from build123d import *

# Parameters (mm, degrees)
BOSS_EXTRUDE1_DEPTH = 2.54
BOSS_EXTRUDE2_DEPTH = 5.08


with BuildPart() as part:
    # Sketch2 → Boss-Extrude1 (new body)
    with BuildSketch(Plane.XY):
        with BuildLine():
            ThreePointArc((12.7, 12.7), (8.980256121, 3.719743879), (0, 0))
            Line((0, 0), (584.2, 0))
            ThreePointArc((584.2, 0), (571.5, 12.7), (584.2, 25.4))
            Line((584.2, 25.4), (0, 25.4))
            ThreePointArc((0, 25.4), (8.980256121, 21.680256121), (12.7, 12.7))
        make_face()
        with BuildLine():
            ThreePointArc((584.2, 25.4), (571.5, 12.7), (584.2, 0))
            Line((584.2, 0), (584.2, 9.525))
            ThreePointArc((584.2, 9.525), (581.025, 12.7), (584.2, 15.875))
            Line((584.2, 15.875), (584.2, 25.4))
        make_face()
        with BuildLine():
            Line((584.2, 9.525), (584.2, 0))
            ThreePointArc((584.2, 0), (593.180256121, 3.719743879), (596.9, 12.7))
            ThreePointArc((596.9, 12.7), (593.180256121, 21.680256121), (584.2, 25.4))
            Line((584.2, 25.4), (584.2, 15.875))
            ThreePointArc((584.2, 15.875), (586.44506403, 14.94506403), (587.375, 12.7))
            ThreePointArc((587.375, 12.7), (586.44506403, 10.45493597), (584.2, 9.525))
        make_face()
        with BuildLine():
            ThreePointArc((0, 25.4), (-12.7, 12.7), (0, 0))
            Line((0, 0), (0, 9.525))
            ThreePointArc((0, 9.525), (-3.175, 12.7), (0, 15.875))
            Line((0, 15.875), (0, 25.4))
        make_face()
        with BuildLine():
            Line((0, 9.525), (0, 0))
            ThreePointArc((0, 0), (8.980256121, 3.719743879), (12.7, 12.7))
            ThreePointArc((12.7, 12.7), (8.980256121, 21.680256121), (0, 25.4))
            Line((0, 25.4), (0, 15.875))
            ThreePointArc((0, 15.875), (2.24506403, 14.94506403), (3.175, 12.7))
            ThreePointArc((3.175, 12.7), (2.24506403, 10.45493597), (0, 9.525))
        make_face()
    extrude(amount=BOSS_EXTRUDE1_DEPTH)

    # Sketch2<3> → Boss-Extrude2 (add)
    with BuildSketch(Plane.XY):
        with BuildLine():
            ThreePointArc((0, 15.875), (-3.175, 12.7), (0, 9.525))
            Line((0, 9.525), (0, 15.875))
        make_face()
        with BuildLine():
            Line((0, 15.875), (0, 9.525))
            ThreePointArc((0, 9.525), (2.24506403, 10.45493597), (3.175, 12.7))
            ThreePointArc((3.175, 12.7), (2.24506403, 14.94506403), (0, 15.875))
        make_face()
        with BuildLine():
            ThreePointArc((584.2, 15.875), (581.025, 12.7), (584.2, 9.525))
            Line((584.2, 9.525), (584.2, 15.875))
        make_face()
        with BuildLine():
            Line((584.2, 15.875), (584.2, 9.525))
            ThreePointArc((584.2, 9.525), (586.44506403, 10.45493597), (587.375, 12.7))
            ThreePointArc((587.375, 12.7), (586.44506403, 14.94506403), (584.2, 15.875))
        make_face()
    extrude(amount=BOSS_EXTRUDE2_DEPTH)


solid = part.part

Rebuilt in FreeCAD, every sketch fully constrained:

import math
import FreeCAD as App
import Part
import Sketcher
Q = App.Units.Quantity

doc = App.newDocument("Part")
body = doc.addObject("PartDesign::Body", "Body")

# Sketch on XY plane
sketch1 = body.newObject("Sketcher::SketchObject", "Sketch")
sketch1.AttachmentSupport = (doc.getObject("XY_Plane"), [""])
sketch1.MapMode = "FlatFace"
sketch1.addGeometry(Part.ArcOfCircle(Part.Circle(App.Vector(584.2, 12.7, 0), App.Vector(0, 0, 1), 12.7), math.radians(-90), math.radians(0)), False)
sketch1.addGeometry(Part.ArcOfCircle(Part.Circle(App.Vector(584.2, 12.7, 0), App.Vector(0, 0, 1), 12.7), math.radians(0), math.radians(90)), False)
sketch1.addGeometry(Part.LineSegment(App.Vector(584.2, 25.4, 0), App.Vector(0, 25.4, 0)), False)
sketch1.addGeometry(Part.ArcOfCircle(Part.Circle(App.Vector(0, 12.7, 0), App.Vector(0, 0, 1), 12.7), math.radians(90), math.radians(270)), False)
sketch1.addGeometry(Part.LineSegment(App.Vector(0, 0, 0), App.Vector(584.2, 0, 0)), False)
sketch1.addGeometry(Part.ArcOfCircle(Part.Circle(App.Vector(584.2, 12.7, 0), App.Vector(0, 0, 1), 3.2), math.radians(90), math.radians(270)), False)
sketch1.addGeometry(Part.ArcOfCircle(Part.Circle(App.Vector(584.2, 12.7, 0), App.Vector(0, 0, 1), 3.2), math.radians(0), math.radians(90)), False)
sketch1.addGeometry(Part.ArcOfCircle(Part.Circle(App.Vector(584.2, 12.7, 0), App.Vector(0, 0, 1), 3.2), math.radians(-90), math.radians(0)), False)
sketch1.addGeometry(Part.ArcOfCircle(Part.Circle(App.Vector(0, 12.7, 0), App.Vector(0, 0, 1), 3.2), math.radians(0), math.radians(90)), False)
sketch1.addGeometry(Part.ArcOfCircle(Part.Circle(App.Vector(0, 12.7, 0), App.Vector(0, 0, 1), 3.2), math.radians(-90), math.radians(0)), False)
sketch1.addGeometry(Part.ArcOfCircle(Part.Circle(App.Vector(0, 12.7, 0), App.Vector(0, 0, 1), 3.2), math.radians(90), math.radians(270)), False)
sketch1.addConstraint(Sketcher.Constraint("Tangent", 0, 2, 1, 1))
sketch1.addConstraint(Sketcher.Constraint("Tangent", 1, 2, 2, 1))
sketch1.addConstraint(Sketcher.Constraint("Tangent", 2, 2, 3, 1))
sketch1.addConstraint(Sketcher.Constraint("Tangent", 3, 2, 4, 1))
sketch1.addConstraint(Sketcher.Constraint("Tangent", 4, 2, 0, 1))
sketch1.addConstraint(Sketcher.Constraint("Tangent", 5, 1, 6, 2))
sketch1.addConstraint(Sketcher.Constraint("Tangent", 6, 1, 7, 2))
sketch1.addConstraint(Sketcher.Constraint("Tangent", 7, 1, 5, 2))
sketch1.addConstraint(Sketcher.Constraint("Tangent", 8, 1, 9, 2))
sketch1.addConstraint(Sketcher.Constraint("Tangent", 9, 1, 10, 2))
sketch1.addConstraint(Sketcher.Constraint("Tangent", 10, 1, 8, 2))
sketch1.addConstraint(Sketcher.Constraint("Horizontal", 2))
sketch1.addConstraint(Sketcher.Constraint("Horizontal", 4))
sketch1.addConstraint(Sketcher.Constraint("Coincident", 3, 2, -1, 1))
sketch1.addConstraint(Sketcher.Constraint("Coincident", 5, 3, 0, 3))
sketch1.addConstraint(Sketcher.Constraint("Coincident", 8, 3, 3, 3))
sketch1.addConstraint(Sketcher.Constraint("Equal", 0, 1))
sketch1.addConstraint(Sketcher.Constraint("Equal", 7, 8))
sketch1.addConstraint(Sketcher.Constraint("PointOnObject", 9, 1, -2))
sketch1.addConstraint(Sketcher.Constraint("PointOnObject", 10, 1, -2))
sketch1.addConstraint(Sketcher.Constraint("Horizontal", 10, 3, 0, 2))
sketch1.addConstraint(Sketcher.Constraint("Horizontal", 0, 2, 6, 1))
sketch1.addConstraint(Sketcher.Constraint("Horizontal", 6, 1, 8, 1))
sketch1.addConstraint(Sketcher.Constraint("Vertical", 4, 2, 5, 1))
sketch1.addConstraint(Sketcher.Constraint("Vertical", 5, 1, 7, 1))
sketch1.addConstraint(Sketcher.Constraint("Radius", 0, Q("0.5 in")))
sketch1.addConstraint(Sketcher.Constraint("DistanceX", 2, 2, 2, 1, Q("23 in")))
sketch1.addConstraint(Sketcher.Constraint("Radius", 5, Q("0.125 in")))
pad1 = body.newObject("PartDesign::Pad", "Pad")
pad1.Profile = sketch1
pad1.Length = Q("0.1 in")

# Sketch on XY plane
sketch2 = body.newObject("Sketcher::SketchObject", "Sketch001")
sketch2.AttachmentSupport = (doc.getObject("XY_Plane"), [""])
sketch2.MapMode = "FlatFace"
sketch2.addGeometry(Part.ArcOfCircle(Part.Circle(App.Vector(0, 12.7, 0), App.Vector(0, 0, 1), 3.2), math.radians(90), math.radians(270)), False)
sketch2.addGeometry(Part.ArcOfCircle(Part.Circle(App.Vector(0, 12.7, 0), App.Vector(0, 0, 1), 3.2), math.radians(-90), math.radians(0)), False)
sketch2.addGeometry(Part.ArcOfCircle(Part.Circle(App.Vector(0, 12.7, 0), App.Vector(0, 0, 1), 3.2), math.radians(0), math.radians(90)), False)
sketch2.addGeometry(Part.ArcOfCircle(Part.Circle(App.Vector(584.2, 12.7, 0), App.Vector(0, 0, 1), 3.2), math.radians(90), math.radians(270)), False)
sketch2.addGeometry(Part.ArcOfCircle(Part.Circle(App.Vector(584.2, 12.7, 0), App.Vector(0, 0, 1), 3.2), math.radians(-90), math.radians(0)), False)
sketch2.addGeometry(Part.ArcOfCircle(Part.Circle(App.Vector(584.2, 12.7, 0), App.Vector(0, 0, 1), 3.2), math.radians(0), math.radians(90)), False)
sketch2.addConstraint(Sketcher.Constraint("Tangent", 0, 2, 1, 1))
sketch2.addConstraint(Sketcher.Constraint("Tangent", 1, 2, 2, 1))
sketch2.addConstraint(Sketcher.Constraint("Tangent", 2, 2, 0, 1))
sketch2.addConstraint(Sketcher.Constraint("Tangent", 3, 2, 4, 1))
sketch2.addConstraint(Sketcher.Constraint("Tangent", 4, 2, 5, 1))
sketch2.addConstraint(Sketcher.Constraint("Tangent", 5, 2, 3, 1))
sketch2.addConstraint(Sketcher.Constraint("Equal", 2, 3))
sketch2.addConstraint(Sketcher.Constraint("PointOnObject", 0, 3, -2))
sketch2.addConstraint(Sketcher.Constraint("PointOnObject", 0, 2, -2))
sketch2.addConstraint(Sketcher.Constraint("PointOnObject", 2, 2, -2))
sketch2.addConstraint(Sketcher.Constraint("Horizontal", 2, 3, 3, 3))
sketch2.addConstraint(Sketcher.Constraint("Horizontal", 5, 3, 1, 2))
sketch2.addConstraint(Sketcher.Constraint("Horizontal", 1, 2, 4, 2))
sketch2.addConstraint(Sketcher.Constraint("Vertical", 5, 3, 3, 2))
sketch2.addConstraint(Sketcher.Constraint("Vertical", 3, 2, 5, 2))
sketch2.addConstraint(Sketcher.Constraint("DistanceX", -1, 1, 3, 3, Q("23 in")))
sketch2.addConstraint(Sketcher.Constraint("Radius", 0, Q("0.125 in")))
sketch2.addConstraint(Sketcher.Constraint("DistanceY", -1, 1, 0, 3, Q("0.5 in")))
pad2 = body.newObject("PartDesign::Pad", "Pad001")
pad2.Profile = sketch2
pad2.Length = Q("0.2 in")

doc.recompute()
